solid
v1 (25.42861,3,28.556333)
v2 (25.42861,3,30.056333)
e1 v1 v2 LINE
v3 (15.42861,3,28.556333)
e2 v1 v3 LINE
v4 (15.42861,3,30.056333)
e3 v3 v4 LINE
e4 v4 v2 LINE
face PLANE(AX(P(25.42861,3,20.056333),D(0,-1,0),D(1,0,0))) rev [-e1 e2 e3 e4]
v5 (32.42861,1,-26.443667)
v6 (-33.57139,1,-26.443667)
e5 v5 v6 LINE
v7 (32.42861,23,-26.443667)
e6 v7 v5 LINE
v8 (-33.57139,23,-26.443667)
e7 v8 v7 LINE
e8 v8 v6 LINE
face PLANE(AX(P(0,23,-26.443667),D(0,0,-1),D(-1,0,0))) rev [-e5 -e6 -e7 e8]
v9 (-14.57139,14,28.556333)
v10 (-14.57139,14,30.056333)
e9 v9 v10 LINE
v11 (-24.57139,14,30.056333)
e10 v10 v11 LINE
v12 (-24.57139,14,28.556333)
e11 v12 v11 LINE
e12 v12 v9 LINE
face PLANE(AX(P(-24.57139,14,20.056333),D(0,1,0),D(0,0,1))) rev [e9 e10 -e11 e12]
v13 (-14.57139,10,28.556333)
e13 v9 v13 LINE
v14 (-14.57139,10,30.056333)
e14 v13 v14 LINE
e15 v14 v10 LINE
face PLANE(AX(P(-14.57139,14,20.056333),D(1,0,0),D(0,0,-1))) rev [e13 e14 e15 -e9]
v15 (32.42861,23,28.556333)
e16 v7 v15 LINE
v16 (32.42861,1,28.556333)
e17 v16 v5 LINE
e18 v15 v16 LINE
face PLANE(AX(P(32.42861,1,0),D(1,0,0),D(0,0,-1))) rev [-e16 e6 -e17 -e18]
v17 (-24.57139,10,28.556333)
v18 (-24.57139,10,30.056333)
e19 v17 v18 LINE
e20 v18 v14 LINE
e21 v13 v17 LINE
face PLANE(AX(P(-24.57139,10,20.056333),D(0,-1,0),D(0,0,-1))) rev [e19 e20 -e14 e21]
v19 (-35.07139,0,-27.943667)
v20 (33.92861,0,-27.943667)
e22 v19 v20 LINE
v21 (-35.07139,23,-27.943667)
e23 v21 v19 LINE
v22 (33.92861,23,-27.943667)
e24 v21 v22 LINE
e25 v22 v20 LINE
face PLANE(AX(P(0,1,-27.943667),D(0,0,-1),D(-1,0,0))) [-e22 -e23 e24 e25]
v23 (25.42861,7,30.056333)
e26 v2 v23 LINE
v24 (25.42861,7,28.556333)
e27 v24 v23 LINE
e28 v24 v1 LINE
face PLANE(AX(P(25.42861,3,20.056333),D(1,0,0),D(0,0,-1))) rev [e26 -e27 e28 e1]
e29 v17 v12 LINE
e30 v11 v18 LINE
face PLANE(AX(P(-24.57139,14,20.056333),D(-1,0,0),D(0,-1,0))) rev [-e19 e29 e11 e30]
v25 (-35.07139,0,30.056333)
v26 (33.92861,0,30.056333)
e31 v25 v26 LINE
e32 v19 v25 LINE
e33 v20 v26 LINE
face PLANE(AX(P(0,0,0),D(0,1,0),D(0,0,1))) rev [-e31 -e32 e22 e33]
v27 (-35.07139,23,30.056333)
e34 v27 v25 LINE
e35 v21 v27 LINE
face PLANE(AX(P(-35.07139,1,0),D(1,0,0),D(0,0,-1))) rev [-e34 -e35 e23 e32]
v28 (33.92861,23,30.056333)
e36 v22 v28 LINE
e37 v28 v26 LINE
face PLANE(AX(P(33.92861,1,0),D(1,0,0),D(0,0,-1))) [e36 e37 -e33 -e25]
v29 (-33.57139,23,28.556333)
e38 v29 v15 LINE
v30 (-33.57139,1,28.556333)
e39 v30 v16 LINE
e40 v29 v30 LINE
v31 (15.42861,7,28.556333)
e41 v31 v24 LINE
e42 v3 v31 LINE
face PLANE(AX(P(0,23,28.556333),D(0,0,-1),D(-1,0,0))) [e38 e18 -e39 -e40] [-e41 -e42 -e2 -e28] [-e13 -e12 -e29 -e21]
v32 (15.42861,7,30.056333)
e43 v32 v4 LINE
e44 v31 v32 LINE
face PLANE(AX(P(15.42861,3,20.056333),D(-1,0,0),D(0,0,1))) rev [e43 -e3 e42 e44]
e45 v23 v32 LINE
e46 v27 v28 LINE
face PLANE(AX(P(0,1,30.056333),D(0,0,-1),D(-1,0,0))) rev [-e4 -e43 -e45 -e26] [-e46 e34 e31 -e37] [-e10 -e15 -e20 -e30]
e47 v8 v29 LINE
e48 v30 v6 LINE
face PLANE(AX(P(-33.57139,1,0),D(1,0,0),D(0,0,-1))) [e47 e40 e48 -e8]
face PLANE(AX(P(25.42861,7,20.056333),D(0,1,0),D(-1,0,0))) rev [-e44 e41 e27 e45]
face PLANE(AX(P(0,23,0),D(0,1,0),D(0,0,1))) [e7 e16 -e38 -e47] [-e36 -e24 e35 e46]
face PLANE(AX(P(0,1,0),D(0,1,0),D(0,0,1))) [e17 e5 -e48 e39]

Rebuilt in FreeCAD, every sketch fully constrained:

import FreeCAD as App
import Part
import Sketcher
from FreeCAD import Vector

doc = App.newDocument("Part")
params = doc.addObject("Spreadsheet::Sheet", "Params")
for row, (alias, value) in enumerate([
    ("sketch1_width", "66 mm"),
    ("sketch1_width2", "69 mm"),
    ("sketch1_height", "58 mm"),
    ("pad1_length", "1 mm"),
    ("sketch2_width", "66 mm"),
    ("sketch2_width2", "69 mm"),
    ("sketch2_height", "58 mm"),
    ("sketch2_height2", "56.5 mm"),
    ("pad2_length", "23 mm"),
    ("sketch3_width", "66 mm"),
    ("sketch3_height", "1.5 mm"),
    ("pad3_length", "23 mm"),
    ("sketch4_width", "10 mm"),
    ("sketch4_height", "4 mm"),
    ("pocket1_length", "10 mm"),
], start=1):
    params.set(f"A{row}", alias)
    params.set(f"B{row}", "=" + value)
    params.setAlias(f"B{row}", alias)

body = doc.addObject("PartDesign::Body", "Body")

sketch1 = body.newObject("Sketcher::SketchObject", "Sketch")
sketch1.AttachmentSupport = (doc.getObject("XZ_Plane"), [""])
sketch1.MapMode = "FlatFace"
sketch1.addGeometry([
    Part.LineSegment(Vector(-33.57139, 30.056333, 0), Vector(-33.57139, 28.556333, 0)),
    Part.LineSegment(Vector(-33.57139, 28.556333, 0), Vector(32.42861, 28.556333, 0)),
    Part.LineSegment(Vector(32.42861, 28.556333, 0), Vector(32.42861, 30.056333, 0)),
    Part.LineSegment(Vector(32.42861, 30.056333, 0), Vector(33.92861, 30.056333, 0)),
    Part.LineSegment(Vector(33.92861, 30.056333, 0), Vector(33.92861, -27.943667, 0)),
    Part.LineSegment(Vector(33.92861, -27.943667, 0), Vector(-35.07139, -27.943667, 0)),
    Part.LineSegment(Vector(-35.07139, -27.943667, 0), Vector(-35.07139, 30.056333, 0)),
    Part.LineSegment(Vector(-35.07139, 30.056333, 0), Vector(-33.57139, 30.056333, 0)),
], False)
sketch1.addConstraint([
    Sketcher.Constraint("Coincident", 0, 2, 1, 1),
    Sketcher.Constraint("Coincident", 1, 2, 2, 1),
    Sketcher.Constraint("Coincident", 2, 2, 3, 1),
    Sketcher.Constraint("Coincident", 3, 2, 4, 1),
    Sketcher.Constraint("Coincident", 4, 2, 5, 1),
    Sketcher.Constraint("Coincident", 5, 2, 6, 1),
    Sketcher.Constraint("Coincident", 6, 2, 7, 1),
    Sketcher.Constraint("Coincident", 7, 2, 0, 1),
    Sketcher.Constraint("Vertical", 0),
    Sketcher.Constraint("Horizontal", 1),
    Sketcher.Constraint("Vertical", 2),
    Sketcher.Constraint("Horizontal", 3),
    Sketcher.Constraint("Vertical", 4),
    Sketcher.Constraint("Horizontal", 5),
    Sketcher.Constraint("Vertical", 6),
    Sketcher.Constraint("Horizontal", 7),
    Sketcher.Constraint("Horizontal", 3, 2, 6, 2),
    Sketcher.Constraint("Equal", 3, 7),
    Sketcher.Constraint("Equal", 7, 0),
    Sketcher.Constraint("DistanceX", 1, 1, 1, 2, 66.0),
    Sketcher.Constraint("DistanceX", 5, 2, 5, 1, 69.0),
    Sketcher.Constraint("DistanceY", 4, 2, 4, 1, 58.0),
    Sketcher.Constraint("DistanceX", 0, 2, -1, 1, 33.57139),
    Sketcher.Constraint("DistanceY", -1, 1, 0, 2, 28.556333),
])
sketch1.setExpression("Constraints[19]", "Params.sketch1_width")
sketch1.setExpression("Constraints[20]", "Params.sketch1_width2")
sketch1.setExpression("Constraints[21]", "Params.sketch1_height")
pad1 = body.newObject("PartDesign::Pad", "Pad")
pad1.Profile = sketch1
pad1.setExpression("Length", "Params.pad1_length")
pad1.Reversed = True

sketch2 = body.newObject("Sketcher::SketchObject", "Sketch001")
sketch2.AttachmentSupport = (doc.getObject("XZ_Plane"), [""])
sketch2.MapMode = "FlatFace"
sketch2.addGeometry([
    Part.LineSegment(Vector(-33.57139, 30.056333, 0), Vector(-33.57139, -26.443667, 0)),
    Part.LineSegment(Vector(-33.57139, -26.443667, 0), Vector(32.42861, -26.443667, 0)),
    Part.LineSegment(Vector(32.42861, -26.443667, 0), Vector(32.42861, 30.056333, 0)),
    Part.LineSegment(Vector(32.42861, 30.056333, 0), Vector(33.92861, 30.056333, 0)),
    Part.LineSegment(Vector(33.92861, 30.056333, 0), Vector(33.92861, -27.943667, 0)),
    Part.LineSegment(Vector(33.92861, -27.943667, 0), Vector(-35.07139, -27.943667, 0)),
    Part.LineSegment(Vector(-35.07139, -27.943667, 0), Vector(-35.07139, 30.056333, 0)),
    Part.LineSegment(Vector(-35.07139, 30.056333, 0), Vector(-33.57139, 30.056333, 0)),
], False)
sketch2.addConstraint([
    Sketcher.Constraint("Coincident", 0, 2, 1, 1),
    Sketcher.Constraint("Coincident", 1, 2, 2, 1),
    Sketcher.Constraint("Coincident", 2, 2, 3, 1),
    Sketcher.Constraint("Coincident", 3, 2, 4, 1),
    Sketcher.Constraint("Coincident", 4, 2, 5, 1),
    Sketcher.Constraint("Coincident", 5, 2, 6, 1),
    Sketcher.Constraint("Coincident", 6, 2, 7, 1),
    Sketcher.Constraint("Coincident", 7, 2, 0, 1),
    Sketcher.Constraint("Vertical", 0),
    Sketcher.Constraint("Horizontal", 1),
    Sketcher.Constraint("Vertical", 2),
    Sketcher.Constraint("Horizontal", 3),
    Sketcher.Constraint("Vertical", 4),
    Sketcher.Constraint("Horizontal", 5),
    Sketcher.Constraint("Vertical", 6),
    Sketcher.Constraint("Horizontal", 7),
    Sketcher.Constraint("Horizontal", 3, 2, 6, 2),
    Sketcher.Constraint("Equal", 3, 7),
    Sketcher.Constraint("DistanceX", 1, 1, 1, 2, 66.0),
    Sketcher.Constraint("DistanceX", 5, 2, 5, 1, 69.0),
    Sketcher.Constraint("DistanceY", 4, 2, 4, 1, 58.0),
    Sketcher.Constraint("DistanceY", 0, 2, 0, 1, 56.5),
    Sketcher.Constraint("DistanceX", 0, 2, -1, 1, 33.57139),
    Sketcher.Constraint("DistanceY", 0, 2, -1, 1, 26.443667),
])
sketch2.setExpression("Constraints[18]", "Params.sketch2_width")
sketch2.setExpression("Constraints[19]", "Params.sketch2_width2")
sketch2.setExpression("Constraints[20]", "Params.sketch2_height")
sketch2.setExpression("Constraints[21]", "Params.sketch2_height2")
pad2 = body.newObject("PartDesign::Pad", "Pad001")
pad2.Profile = sketch2
pad2.setExpression("Length", "Params.pad2_length")
pad2.Reversed = True

sketch3 = body.newObject("Sketcher::SketchObject", "Sketch002")
sketch3.AttachmentSupport = (doc.getObject("XZ_Plane"), [""])
sketch3.MapMode = "FlatFace"
sketch3.addGeometry([
    Part.LineSegment(Vector(-33.57139, 28.556333, 0), Vector(-33.57139, 30.056333, 0)),
    Part.LineSegment(Vector(-33.57139, 30.056333, 0), Vector(32.42861, 30.056333, 0)),
    Part.LineSegment(Vector(32.42861, 30.056333, 0), Vector(32.42861, 28.556333, 0)),
    Part.LineSegment(Vector(32.42861, 28.556333, 0), Vector(-33.57139, 28.556333, 0)),
], False)
sketch3.addConstraint([
    Sketcher.Constraint("Coincident", 0, 2, 1, 1),
    Sketcher.Constraint("Coincident", 1, 2, 2, 1),
    Sketcher.Constraint("Coincident", 2, 2, 3, 1),
    Sketcher.Constraint("Coincident", 3, 2, 0, 1),
    Sketcher.Constraint("Vertical", 0),
    Sketcher.Constraint("Horizontal", 1),
    Sketcher.Constraint("Vertical", 2),
    Sketcher.Constraint("Horizontal", 3),
    Sketcher.Constraint("DistanceX", 1, 1, 1, 2, 66.0),
    Sketcher.Constraint("DistanceY", 0, 1, 0, 2, 1.5),
    Sketcher.Constraint("DistanceX", 0, 2, -1, 1, 33.57139),
    Sketcher.Constraint("DistanceY", -1, 1, 0, 2, 30.056333),
])
sketch3.setExpression("Constraints[8]", "Params.sketch3_width")
sketch3.setExpression("Constraints[9]", "Params.sketch3_height")
pad3 = body.newObject("PartDesign::Pad", "Pad002")
pad3.Profile = sketch3
pad3.setExpression("Length", "Params.pad3_length")
pad3.Reversed = True

sketch4 = body.newObject("Sketcher::SketchObject", "Sketch003")
sketch4.AttachmentSupport = (doc.getObject("XY_Plane"), [""])
sketch4.MapMode = "FlatFace"
sketch4.AttachmentOffset = App.Placement(Vector(0, 0, 30.056333), App.Rotation())
sketch4.addGeometry([
    Part.LineSegment(Vector(15.42861, 7, 0), Vector(15.42861, 3, 0)),
    Part.LineSegment(Vector(15.42861, 3, 0), Vector(25.42861, 3, 0)),
    Part.LineSegment(Vector(25.42861, 3, 0), Vector(25.42861, 7, 0)),
    Part.LineSegment(Vector(25.42861, 7, 0), Vector(15.42861, 7, 0)),
    Part.LineSegment(Vector(-24.57139, 14, 0), Vector(-24.57139, 10, 0)),
    Part.LineSegment(Vector(-24.57139, 10, 0), Vector(-14.57139, 10, 0)),
    Part.LineSegment(Vector(-14.57139, 10, 0), Vector(-14.57139, 14, 0)),
    Part.LineSegment(Vector(-14.57139, 14, 0), Vector(-24.57139, 14, 0)),
], False)
sketch4.addConstraint([
    Sketcher.Constraint("Coincident", 0, 2, 1, 1),
    Sketcher.Constraint("Coincident", 1, 2, 2, 1),
    Sketcher.Constraint("Coincident", 2, 2, 3, 1),
    Sketcher.Constraint("Coincident", 3, 2, 0, 1),
    Sketcher.Constraint("Coincident", 4, 2, 5, 1),
    Sketcher.Constraint("Coincident", 5, 2, 6, 1),
    Sketcher.Constraint("Coincident", 6, 2, 7, 1),
    Sketcher.Constraint("Coincident", 7, 2, 4, 1),
    Sketcher.Constraint("Vertical", 0),
    Sketcher.Constraint("Horizontal", 1),
    Sketcher.Constraint("Vertical", 2),
    Sketcher.Constraint("Horizontal", 3),
    Sketcher.Constraint("Vertical", 4),
    Sketcher.Constraint("Horizontal", 5),
    Sketcher.Constraint("Vertical", 6),
    Sketcher.Constraint("Horizontal", 7),
    Sketcher.Constraint("Equal", 3, 5),
    Sketcher.Constraint("Equal", 2, 4),
    Sketcher.Constraint("DistanceX", 1, 1, 1, 2, 10.0),
    Sketcher.Constraint("DistanceY", 0, 2, 0, 1, 4.0),
    Sketcher.Constraint("DistanceY", -1, 1, 0, 2, 3.0),
    Sketcher.Constraint("DistanceY", -1, 1, 4, 2, 10.0),
    Sketcher.Constraint("DistanceX", 4, 2, 3, 2, 40.0),
    Sketcher.Constraint("DistanceX", -1, 1, 0, 2, 15.42861),
])
sketch4.setExpression("Constraints[18]", "Params.sketch4_width")
sketch4.setExpression("Constraints[19]", "Params.sketch4_height")
pocket1 = body.newObject("PartDesign::Pocket", "Pocket")
pocket1.Profile = sketch4
pocket1.setExpression("Length", "Params.pocket1_length")

doc.recompute()
